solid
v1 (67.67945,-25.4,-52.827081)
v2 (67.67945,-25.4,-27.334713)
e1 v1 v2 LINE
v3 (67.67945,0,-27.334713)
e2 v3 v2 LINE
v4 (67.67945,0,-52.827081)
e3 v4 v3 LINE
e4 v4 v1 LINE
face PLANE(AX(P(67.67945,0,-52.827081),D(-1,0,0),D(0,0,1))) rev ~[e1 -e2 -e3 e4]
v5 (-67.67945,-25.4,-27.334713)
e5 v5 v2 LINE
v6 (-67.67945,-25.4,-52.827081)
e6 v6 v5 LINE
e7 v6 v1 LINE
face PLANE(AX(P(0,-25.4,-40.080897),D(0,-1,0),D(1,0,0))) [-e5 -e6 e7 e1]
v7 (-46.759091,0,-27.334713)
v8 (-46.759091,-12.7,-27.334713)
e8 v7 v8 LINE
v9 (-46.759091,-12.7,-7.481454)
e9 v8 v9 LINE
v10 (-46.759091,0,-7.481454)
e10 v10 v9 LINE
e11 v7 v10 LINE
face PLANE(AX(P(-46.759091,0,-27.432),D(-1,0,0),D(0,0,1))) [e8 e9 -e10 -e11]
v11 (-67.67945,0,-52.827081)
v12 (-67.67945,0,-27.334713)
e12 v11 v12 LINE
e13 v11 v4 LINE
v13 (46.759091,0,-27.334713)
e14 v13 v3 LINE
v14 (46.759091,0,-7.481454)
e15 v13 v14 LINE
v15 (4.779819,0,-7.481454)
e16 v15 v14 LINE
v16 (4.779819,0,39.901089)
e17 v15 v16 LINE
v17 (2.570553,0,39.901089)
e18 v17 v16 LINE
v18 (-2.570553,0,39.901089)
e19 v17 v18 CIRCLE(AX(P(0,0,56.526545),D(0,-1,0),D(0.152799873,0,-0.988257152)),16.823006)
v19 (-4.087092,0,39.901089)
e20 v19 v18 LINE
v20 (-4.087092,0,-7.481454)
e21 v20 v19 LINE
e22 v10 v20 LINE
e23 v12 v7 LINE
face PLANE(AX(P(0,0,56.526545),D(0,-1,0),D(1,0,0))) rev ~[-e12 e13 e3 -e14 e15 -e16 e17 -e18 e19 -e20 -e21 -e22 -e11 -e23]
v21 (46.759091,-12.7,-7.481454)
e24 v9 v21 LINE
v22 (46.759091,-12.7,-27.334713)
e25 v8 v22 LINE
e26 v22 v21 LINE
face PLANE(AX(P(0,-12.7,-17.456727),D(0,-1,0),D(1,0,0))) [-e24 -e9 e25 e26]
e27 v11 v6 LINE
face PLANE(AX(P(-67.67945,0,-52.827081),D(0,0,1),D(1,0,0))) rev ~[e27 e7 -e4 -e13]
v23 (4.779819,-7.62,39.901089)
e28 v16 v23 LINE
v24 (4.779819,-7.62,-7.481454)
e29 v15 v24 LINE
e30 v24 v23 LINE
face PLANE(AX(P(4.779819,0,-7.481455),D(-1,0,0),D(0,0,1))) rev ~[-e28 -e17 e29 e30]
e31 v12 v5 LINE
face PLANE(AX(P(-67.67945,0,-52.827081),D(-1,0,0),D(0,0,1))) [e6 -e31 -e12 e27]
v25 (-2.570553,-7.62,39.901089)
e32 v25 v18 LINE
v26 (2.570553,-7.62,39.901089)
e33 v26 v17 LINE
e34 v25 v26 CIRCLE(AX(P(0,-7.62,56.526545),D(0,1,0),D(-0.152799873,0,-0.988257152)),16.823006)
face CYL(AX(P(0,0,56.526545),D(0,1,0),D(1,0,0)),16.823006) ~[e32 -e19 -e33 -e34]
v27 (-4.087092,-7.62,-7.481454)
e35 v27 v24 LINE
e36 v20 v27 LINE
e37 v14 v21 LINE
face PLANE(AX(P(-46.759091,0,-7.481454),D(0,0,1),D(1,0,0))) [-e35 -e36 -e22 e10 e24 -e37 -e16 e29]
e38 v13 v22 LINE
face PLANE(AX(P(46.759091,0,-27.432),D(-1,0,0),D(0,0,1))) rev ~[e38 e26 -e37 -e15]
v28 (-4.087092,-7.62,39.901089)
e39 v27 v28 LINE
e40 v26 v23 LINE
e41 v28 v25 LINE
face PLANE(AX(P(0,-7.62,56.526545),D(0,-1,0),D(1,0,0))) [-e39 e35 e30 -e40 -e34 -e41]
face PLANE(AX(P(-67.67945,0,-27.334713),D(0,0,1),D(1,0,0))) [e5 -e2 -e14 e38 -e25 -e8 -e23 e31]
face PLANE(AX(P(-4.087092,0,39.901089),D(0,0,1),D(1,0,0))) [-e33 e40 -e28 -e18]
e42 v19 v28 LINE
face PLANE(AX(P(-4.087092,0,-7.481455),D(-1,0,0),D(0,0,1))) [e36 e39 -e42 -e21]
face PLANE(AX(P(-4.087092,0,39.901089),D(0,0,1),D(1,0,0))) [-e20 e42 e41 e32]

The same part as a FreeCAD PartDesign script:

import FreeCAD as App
import Part
import Sketcher
from FreeCAD import Vector
Q = App.Units.Quantity


def add_polygon(sketch, points):
    """Adds a closed chain of lines whose ends are joined by coincident constraints."""
    first, n = sketch.GeometryCount, len(points)
    for a, b in zip(points, points[1:] + points[:1]):
        sketch.addGeometry(Part.LineSegment(App.Vector(*a, 0), App.Vector(*b, 0)), False)
    for i in range(n):
        sketch.addConstraint(Sketcher.Constraint("Coincident", first + i, 2, first + (i + 1) % n, 1))

doc = App.newDocument("Part")
body = doc.addObject("PartDesign::Body", "Body")

# Sketch on XZ plane
sketch1 = body.newObject("Sketcher::SketchObject", "Sketch")
sketch1.AttachmentSupport = (doc.getObject("XZ_Plane"), [""])
sketch1.MapMode = "FlatFace"
add_polygon(sketch1, [(-67.67945, -27.334713), (-67.67945, -52.827081), (67.67945, -52.827081), (67.67945, -27.334713)])  # lines 0-3
sketch1.addConstraint(Sketcher.Constraint("Vertical", 0))
sketch1.addConstraint(Sketcher.Constraint("Horizontal", 1))
sketch1.addConstraint(Sketcher.Constraint("Vertical", 2))
sketch1.addConstraint(Sketcher.Constraint("Horizontal", 3))
sketch1.addConstraint(Sketcher.Constraint("DistanceX", 1, 1, 1, 2, Q("135.3589 mm")))
sketch1.addConstraint(Sketcher.Constraint("DistanceY", 0, 2, 0, 1, Q("25.492367 mm")))
sketch1.addConstraint(Sketcher.Constraint("DistanceX", 0, 2, -1, 1, Q("67.67945 mm")))
sketch1.addConstraint(Sketcher.Constraint("DistanceY", 0, 2, -1, 1, Q("52.827081 mm")))
pad1 = body.newObject("PartDesign::Pad", "Pad")
pad1.Profile = sketch1
pad1.Length = Q("1 in")

# Sketch on XZ plane
sketch2 = body.newObject("Sketcher::SketchObject", "Sketch001")
sketch2.AttachmentSupport = (doc.getObject("XZ_Plane"), [""])
sketch2.MapMode = "FlatFace"
add_polygon(sketch2, [(-46.759091, -7.481454), (-46.759091, -27.432), (46.759091, -27.432), (46.759091, -7.481454)])  # lines 0-3
sketch2.addConstraint(Sketcher.Constraint("Vertical", 0))
sketch2.addConstraint(Sketcher.Constraint("Horizontal", 1))
sketch2.addConstraint(Sketcher.Constraint("Vertical", 2))
sketch2.addConstraint(Sketcher.Constraint("Horizontal", 3))
sketch2.addConstraint(Sketcher.Constraint("DistanceY", 0, 2, -1, 1, Q("1.08 in")))
sketch2.addConstraint(Sketcher.Constraint("DistanceX", 1, 1, 1, 2, Q("93.518182 mm")))
sketch2.addConstraint(Sketcher.Constraint("DistanceY", 0, 2, 0, 1, Q("19.950546 mm")))
sketch2.addConstraint(Sketcher.Constraint("DistanceX", 0, 2, -1, 1, Q("46.759091 mm")))
pad2 = body.newObject("PartDesign::Pad", "Pad001")
pad2.Profile = sketch2
pad2.Length = Q("0.5 in")

# Sketch on XZ plane
sketch3 = body.newObject("Sketcher::SketchObject", "Sketch002")
sketch3.AttachmentSupport = (doc.getObject("XZ_Plane"), [""])
sketch3.MapMode = "FlatFace"
add_polygon(sketch3, [(-4.087092, 39.901089), (-4.087092, -7.481455), (4.779819, -7.481455), (4.779819, 39.901089)])  # lines 0-3
sketch3.addConstraint(Sketcher.Constraint("Vertical", 0))
sketch3.addConstraint(Sketcher.Constraint("Horizontal", 1))
sketch3.addConstraint(Sketcher.Constraint("Vertical", 2))
sketch3.addConstraint(Sketcher.Constraint("Horizontal", 3))
sketch3.addConstraint(Sketcher.Constraint("DistanceX", 1, 1, 1, 2, Q("8.866911 mm")))
sketch3.addConstraint(Sketcher.Constraint("DistanceY", 0, 2, 0, 1, Q("47.382544 mm")))
sketch3.addConstraint(Sketcher.Constraint("DistanceX", -1, 1, 1, 2, Q("4.779819 mm")))
sketch3.addConstraint(Sketcher.Constraint("DistanceY", -1, 1, 2, 2, Q("39.901089 mm")))
pad3 = body.newObject("PartDesign::Pad", "Pad002")
pad3.Profile = sketch3
pad3.Length = Q("0.3 in")

# Sketch on XZ plane
sketch4 = body.newObject("Sketcher::SketchObject", "Sketch003")
sketch4.AttachmentSupport = (doc.getObject("XZ_Plane"), [""])
sketch4.MapMode = "FlatFace"
sketch4.addGeometry(Part.Circle(Vector(0, 56.526545, 0), Vector(0, 0, 1), 16.823006), False)
sketch4.addConstraint(Sketcher.Constraint("PointOnObject", 0, 3, -2))
sketch4.addConstraint(Sketcher.Constraint("Diameter", 0, Q("33.646012 mm")))
sketch4.addConstraint(Sketcher.Constraint("DistanceY", -1, 1, 0, 3, Q("56.526545 mm")))
pad4 = body.newObject("PartDesign::Pad", "Pad003")
pad4.Profile = sketch4
pad4.Length = Q("0.3 in")

doc.recompute()
